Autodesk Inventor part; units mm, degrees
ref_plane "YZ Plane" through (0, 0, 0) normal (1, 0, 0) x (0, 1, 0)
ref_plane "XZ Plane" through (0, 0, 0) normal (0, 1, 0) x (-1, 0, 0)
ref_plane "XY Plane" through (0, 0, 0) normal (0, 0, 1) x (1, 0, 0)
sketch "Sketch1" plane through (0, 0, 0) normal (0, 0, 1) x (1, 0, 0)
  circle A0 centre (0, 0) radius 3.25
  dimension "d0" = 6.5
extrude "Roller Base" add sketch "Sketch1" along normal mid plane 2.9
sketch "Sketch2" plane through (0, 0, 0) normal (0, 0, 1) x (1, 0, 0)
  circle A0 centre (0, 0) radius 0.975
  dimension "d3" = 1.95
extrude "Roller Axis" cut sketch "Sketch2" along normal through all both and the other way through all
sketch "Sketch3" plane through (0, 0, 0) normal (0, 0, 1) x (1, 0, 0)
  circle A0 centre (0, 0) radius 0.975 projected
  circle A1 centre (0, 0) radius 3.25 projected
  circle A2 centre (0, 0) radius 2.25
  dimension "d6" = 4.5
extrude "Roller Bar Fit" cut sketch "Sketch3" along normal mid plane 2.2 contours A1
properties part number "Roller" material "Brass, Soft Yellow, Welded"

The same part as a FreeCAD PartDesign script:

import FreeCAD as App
import Part
import Sketcher
Q = App.Units.Quantity

doc = App.newDocument("Part")
params = doc.addObject("Spreadsheet::Sheet", "Params")
for row, (alias, value) in enumerate([
    ("sketch1_diameter", "6.5 mm"),
    ("pad1_length", "2.9 mm"),
    ("sketch2_diameter", "1.95 mm"),
    ("sketch3_diameter", "4.5 mm"),
    ("sketch3_diameter2", "6.5 mm"),
    ("pocket2_length", "2.2 mm"),
], start=1):
    params.set(f"A{row}", alias)
    params.set(f"B{row}", "=" + value)
    params.setAlias(f"B{row}", alias)

body = doc.addObject("PartDesign::Body", "Body")

sketch1 = body.newObject("Sketcher::SketchObject", "Sketch")
sketch1.AttachmentSupport = (doc.getObject("XY_Plane"), [""])
sketch1.MapMode = "FlatFace"
sketch1.addGeometry(Part.Circle(App.Vector(0, 0, 0), App.Vector(0, 0, 1), 3.2), False)
sketch1.addConstraint([
    Sketcher.Constraint("Coincident", 0, 3, -1, 1),
    Sketcher.Constraint("Diameter", 0, Q("6.5 mm")),
])
sketch1.setExpression("Constraints[1]", "Params.sketch1_diameter")
pad1 = body.newObject("PartDesign::Pad", "Pad")
pad1.Profile = sketch1
pad1.setExpression("Length", "Params.pad1_length")
pad1.Midplane = True

sketch2 = body.newObject("Sketcher::SketchObject", "Sketch001")
sketch2.AttachmentSupport = (doc.getObject("XY_Plane"), [""])
sketch2.MapMode = "FlatFace"
sketch2.addGeometry(Part.Circle(App.Vector(0, 0, 0), App.Vector(0, 0, 1), 1), False)
sketch2.addConstraint([
    Sketcher.Constraint("Coincident", 0, 3, -1, 1),
    Sketcher.Constraint("Diameter", 0, Q("1.95 mm")),
])
sketch2.setExpression("Constraints[1]", "Params.sketch2_diameter")
pocket1 = body.newObject("PartDesign::Pocket", "Pocket")
pocket1.Profile = sketch2
pocket1.Type = "ThroughAll"
pocket1.Midplane = True

sketch3 = body.newObject("Sketcher::SketchObject", "Sketch002")
sketch3.AttachmentSupport = (doc.getObject("XY_Plane"), [""])
sketch3.MapMode = "FlatFace"
sketch3.addGeometry([
    Part.Circle(App.Vector(0, 0, 0), App.Vector(0, 0, 1), 3.2),
    Part.Circle(App.Vector(0, 0, 0), App.Vector(0, 0, 1), 2.2),
], False)
sketch3.addConstraint([
    Sketcher.Constraint("Coincident", 0, 3, -1, 1),
    Sketcher.Constraint("Coincident", 1, 3, -1, 1),
    Sketcher.Constraint("Diameter", 1, Q("4.5 mm")),
    Sketcher.Constraint("Diameter", 0, Q("6.5 mm")),
])
sketch3.setExpression("Constraints[2]", "Params.sketch3_diameter")
sketch3.setExpression("Constraints[3]", "Params.sketch3_diameter2")
pocket2 = body.newObject("PartDesign::Pocket", "Pocket001")
pocket2.Profile = sketch3
pocket2.setExpression("Length", "Params.pocket2_length")
pocket2.Midplane = True

doc.recompute()
